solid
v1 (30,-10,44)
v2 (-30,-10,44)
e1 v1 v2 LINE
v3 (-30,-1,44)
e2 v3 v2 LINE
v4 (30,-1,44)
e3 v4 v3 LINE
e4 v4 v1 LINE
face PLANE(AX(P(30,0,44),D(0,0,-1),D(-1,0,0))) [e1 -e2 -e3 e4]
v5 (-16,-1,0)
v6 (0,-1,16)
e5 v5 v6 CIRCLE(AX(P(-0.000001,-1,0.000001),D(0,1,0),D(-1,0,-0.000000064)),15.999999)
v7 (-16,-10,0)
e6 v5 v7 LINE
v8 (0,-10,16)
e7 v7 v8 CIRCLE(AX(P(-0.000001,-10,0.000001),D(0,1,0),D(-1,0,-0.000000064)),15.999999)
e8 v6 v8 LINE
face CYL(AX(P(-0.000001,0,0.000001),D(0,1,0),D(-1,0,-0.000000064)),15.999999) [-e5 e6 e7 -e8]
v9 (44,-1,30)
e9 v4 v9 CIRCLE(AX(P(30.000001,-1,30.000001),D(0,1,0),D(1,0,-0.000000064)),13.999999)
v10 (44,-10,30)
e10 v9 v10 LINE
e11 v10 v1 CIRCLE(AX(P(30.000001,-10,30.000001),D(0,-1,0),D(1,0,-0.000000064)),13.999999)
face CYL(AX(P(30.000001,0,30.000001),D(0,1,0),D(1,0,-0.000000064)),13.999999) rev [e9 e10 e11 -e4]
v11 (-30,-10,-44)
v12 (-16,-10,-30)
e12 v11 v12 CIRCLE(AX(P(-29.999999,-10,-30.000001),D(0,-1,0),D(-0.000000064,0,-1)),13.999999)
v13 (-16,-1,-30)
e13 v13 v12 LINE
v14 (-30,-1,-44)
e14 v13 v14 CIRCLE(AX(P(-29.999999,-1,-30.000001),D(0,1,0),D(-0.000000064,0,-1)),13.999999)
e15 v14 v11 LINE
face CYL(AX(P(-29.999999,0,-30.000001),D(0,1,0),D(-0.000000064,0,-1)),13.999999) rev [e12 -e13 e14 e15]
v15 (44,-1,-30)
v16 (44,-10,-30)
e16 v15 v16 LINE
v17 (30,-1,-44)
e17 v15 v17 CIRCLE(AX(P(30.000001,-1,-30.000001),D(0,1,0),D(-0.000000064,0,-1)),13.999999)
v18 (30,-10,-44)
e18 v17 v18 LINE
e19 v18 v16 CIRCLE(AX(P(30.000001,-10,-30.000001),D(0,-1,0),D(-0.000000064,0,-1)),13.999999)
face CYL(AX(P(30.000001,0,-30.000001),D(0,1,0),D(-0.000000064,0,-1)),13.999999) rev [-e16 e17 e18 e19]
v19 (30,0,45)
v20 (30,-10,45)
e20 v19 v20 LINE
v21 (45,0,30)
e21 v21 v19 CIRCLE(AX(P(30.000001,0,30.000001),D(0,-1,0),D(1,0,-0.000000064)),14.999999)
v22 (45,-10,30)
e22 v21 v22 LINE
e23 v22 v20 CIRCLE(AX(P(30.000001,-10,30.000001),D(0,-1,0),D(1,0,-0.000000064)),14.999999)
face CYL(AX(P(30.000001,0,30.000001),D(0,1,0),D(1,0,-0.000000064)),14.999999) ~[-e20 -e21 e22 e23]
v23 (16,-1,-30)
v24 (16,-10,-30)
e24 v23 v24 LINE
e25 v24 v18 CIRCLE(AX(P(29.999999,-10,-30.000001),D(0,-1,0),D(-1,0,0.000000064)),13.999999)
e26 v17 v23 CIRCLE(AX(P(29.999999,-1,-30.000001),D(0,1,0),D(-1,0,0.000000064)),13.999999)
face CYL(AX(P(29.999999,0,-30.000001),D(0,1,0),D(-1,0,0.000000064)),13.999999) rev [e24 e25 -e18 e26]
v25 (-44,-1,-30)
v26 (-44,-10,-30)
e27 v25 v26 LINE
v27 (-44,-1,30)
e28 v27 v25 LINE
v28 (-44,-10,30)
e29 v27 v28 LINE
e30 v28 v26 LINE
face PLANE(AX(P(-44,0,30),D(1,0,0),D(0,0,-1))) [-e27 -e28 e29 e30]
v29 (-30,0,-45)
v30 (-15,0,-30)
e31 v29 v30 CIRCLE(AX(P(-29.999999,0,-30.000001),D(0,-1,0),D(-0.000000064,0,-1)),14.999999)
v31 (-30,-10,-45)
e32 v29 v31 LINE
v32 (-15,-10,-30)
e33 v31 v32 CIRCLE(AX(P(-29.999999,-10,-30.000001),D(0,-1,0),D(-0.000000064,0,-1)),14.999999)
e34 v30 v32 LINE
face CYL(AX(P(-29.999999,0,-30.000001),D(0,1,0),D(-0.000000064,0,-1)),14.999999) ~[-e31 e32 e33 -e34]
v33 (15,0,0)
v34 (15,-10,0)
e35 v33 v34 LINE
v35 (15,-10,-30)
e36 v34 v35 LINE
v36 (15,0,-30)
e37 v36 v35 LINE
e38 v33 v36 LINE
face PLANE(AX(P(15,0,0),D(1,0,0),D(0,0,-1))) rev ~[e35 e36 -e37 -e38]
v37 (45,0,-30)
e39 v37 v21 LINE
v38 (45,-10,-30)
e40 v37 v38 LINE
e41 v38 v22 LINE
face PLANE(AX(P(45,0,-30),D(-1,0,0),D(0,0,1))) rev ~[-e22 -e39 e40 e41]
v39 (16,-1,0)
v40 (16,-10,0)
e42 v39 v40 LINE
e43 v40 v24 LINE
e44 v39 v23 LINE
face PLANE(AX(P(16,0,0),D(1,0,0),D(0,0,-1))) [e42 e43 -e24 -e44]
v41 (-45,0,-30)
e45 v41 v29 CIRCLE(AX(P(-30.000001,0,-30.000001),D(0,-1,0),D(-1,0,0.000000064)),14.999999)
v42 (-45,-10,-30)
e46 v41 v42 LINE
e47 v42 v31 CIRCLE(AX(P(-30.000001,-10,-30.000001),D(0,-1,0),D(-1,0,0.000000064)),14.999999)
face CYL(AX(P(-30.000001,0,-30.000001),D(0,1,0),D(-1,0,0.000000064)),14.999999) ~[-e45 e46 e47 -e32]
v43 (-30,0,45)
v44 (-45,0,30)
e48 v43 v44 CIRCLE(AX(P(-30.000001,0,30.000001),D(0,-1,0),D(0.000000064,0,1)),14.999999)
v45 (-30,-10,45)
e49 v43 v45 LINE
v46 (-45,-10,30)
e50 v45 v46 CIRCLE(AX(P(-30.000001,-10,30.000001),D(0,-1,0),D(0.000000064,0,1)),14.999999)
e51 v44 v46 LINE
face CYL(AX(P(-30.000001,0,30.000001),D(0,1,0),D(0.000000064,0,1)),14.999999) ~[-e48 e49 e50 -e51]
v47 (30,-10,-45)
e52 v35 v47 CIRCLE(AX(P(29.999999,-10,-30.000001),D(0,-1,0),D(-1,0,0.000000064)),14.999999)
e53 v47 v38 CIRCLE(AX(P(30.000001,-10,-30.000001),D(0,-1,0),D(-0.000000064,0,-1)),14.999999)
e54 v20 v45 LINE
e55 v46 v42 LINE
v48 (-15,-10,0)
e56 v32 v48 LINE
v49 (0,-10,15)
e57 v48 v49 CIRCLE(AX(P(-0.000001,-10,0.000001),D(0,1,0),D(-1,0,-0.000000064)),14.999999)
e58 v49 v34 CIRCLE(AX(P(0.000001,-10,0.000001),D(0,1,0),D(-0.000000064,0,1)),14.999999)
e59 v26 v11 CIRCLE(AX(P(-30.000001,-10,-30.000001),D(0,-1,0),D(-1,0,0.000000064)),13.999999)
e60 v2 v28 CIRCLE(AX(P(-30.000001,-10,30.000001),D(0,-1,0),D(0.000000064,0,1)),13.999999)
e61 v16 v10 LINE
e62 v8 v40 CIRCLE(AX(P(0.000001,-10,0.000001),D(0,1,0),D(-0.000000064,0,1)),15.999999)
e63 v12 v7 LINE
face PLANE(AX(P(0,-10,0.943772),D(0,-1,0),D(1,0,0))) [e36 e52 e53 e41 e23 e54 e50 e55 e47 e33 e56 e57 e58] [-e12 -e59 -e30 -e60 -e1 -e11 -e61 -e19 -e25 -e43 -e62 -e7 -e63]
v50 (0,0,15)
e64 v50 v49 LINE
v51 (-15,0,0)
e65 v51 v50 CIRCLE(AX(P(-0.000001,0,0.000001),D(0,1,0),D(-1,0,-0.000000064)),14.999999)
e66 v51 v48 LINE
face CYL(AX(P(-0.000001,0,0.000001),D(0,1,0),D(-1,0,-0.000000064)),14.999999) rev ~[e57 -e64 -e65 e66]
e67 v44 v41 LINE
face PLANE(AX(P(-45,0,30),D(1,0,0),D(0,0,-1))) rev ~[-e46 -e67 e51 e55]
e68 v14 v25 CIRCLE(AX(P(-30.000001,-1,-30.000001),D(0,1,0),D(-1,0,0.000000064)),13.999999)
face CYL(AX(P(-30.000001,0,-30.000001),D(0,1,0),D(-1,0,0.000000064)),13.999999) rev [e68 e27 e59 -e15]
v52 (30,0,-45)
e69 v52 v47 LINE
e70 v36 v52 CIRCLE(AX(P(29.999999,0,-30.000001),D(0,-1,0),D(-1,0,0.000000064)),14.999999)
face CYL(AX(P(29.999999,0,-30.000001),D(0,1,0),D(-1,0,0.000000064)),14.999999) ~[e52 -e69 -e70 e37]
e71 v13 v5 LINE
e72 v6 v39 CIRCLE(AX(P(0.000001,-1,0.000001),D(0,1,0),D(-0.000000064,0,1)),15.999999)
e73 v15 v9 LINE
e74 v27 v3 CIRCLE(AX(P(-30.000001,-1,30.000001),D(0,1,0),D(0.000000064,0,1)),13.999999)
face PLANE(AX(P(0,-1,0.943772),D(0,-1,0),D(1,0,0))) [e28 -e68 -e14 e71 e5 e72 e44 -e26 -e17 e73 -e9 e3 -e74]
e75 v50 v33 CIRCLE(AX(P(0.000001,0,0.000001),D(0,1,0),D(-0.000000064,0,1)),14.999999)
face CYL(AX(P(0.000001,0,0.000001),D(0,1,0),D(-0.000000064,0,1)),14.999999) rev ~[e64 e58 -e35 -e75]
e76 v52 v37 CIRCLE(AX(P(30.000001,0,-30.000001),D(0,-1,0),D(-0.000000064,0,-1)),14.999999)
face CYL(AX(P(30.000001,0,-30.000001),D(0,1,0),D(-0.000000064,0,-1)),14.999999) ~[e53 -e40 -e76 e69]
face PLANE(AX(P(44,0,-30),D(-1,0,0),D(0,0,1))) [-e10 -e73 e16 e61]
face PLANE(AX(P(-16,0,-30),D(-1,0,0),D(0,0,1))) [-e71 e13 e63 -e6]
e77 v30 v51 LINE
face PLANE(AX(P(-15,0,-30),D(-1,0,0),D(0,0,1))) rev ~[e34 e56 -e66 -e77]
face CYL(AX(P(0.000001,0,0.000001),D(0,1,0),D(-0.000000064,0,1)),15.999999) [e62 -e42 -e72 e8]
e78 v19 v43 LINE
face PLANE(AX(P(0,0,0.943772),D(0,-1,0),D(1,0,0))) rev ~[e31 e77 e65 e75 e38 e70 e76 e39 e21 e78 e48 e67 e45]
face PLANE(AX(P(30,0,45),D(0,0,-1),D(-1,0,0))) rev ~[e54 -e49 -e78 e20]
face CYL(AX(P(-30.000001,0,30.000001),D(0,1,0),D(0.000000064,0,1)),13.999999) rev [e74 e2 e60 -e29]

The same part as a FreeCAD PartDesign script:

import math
import FreeCAD as App
import Part
import Sketcher
Q = App.Units.Quantity


def faces_at(feature, points):
    """Names of the faces that lie closest to the given points."""
    faces = feature.Shape.Faces
    near = lambda p: min(range(len(faces)), key=lambda i: faces[i].distToShape(Part.Vertex(*p))[0])
    return sorted({f"Face{near(p) + 1}" for p in points})

doc = App.newDocument("Part")
body = doc.addObject("PartDesign::Body", "Body")

# Sketch on XZ plane
sketch1 = body.newObject("Sketcher::SketchObject", "Sketch")
sketch1.AttachmentSupport = (doc.getObject("XZ_Plane"), [""])
sketch1.MapMode = "FlatFace"
sketch1.addGeometry([
    Part.ArcOfCircle(Part.Circle(App.Vector(30, 30, 0), App.Vector(0, 0, 1), 15), math.radians(0), math.radians(90)),  # 0
    Part.LineSegment(App.Vector(30, 45, 0), App.Vector(-30, 45, 0)),  # 1
    Part.ArcOfCircle(Part.Circle(App.Vector(-30, 30, 0), App.Vector(0, 0, 1), 15), math.radians(90), math.radians(180)),  # 2
    Part.LineSegment(App.Vector(-45, 30, 0), App.Vector(-45, -30, 0)),  # 3
    Part.ArcOfCircle(Part.Circle(App.Vector(-30, -30, 0), App.Vector(0, 0, 1), 15), math.radians(180), math.radians(270)),  # 4
    Part.ArcOfCircle(Part.Circle(App.Vector(-30, -30, 0), App.Vector(0, 0, 1), 15), math.radians(-90), math.radians(0)),  # 5
    Part.LineSegment(App.Vector(-15, -30, 0), App.Vector(-15, 0, 0)),  # 6
    Part.ArcOfCircle(Part.Circle(App.Vector(0, 0, 0), App.Vector(0, 0, 1), 15), math.radians(90), math.radians(180)),  # 7
    Part.ArcOfCircle(Part.Circle(App.Vector(0, 0, 0), App.Vector(0, 0, 1), 15), math.radians(0), math.radians(90)),  # 8
    Part.LineSegment(App.Vector(15, 0, 0), App.Vector(15, -30, 0)),  # 9
    Part.ArcOfCircle(Part.Circle(App.Vector(30, -30, 0), App.Vector(0, 0, 1), 15), math.radians(180), math.radians(270)),  # 10
    Part.ArcOfCircle(Part.Circle(App.Vector(30, -30, 0), App.Vector(0, 0, 1), 15), math.radians(-90), math.radians(0)),  # 11
    Part.LineSegment(App.Vector(45, -30, 0), App.Vector(45, 30, 0)),  # 12
], False)
sketch1.addConstraint([
    Sketcher.Constraint("Tangent", 0, 2, 1, 1),
    Sketcher.Constraint("Tangent", 1, 2, 2, 1),
    Sketcher.Constraint("Tangent", 2, 2, 3, 1),
    Sketcher.Constraint("Tangent", 3, 2, 4, 1),
    Sketcher.Constraint("Tangent", 4, 2, 5, 1),
    Sketcher.Constraint("Tangent", 5, 2, 6, 1),
    Sketcher.Constraint("Tangent", 6, 2, 7, 2),
    Sketcher.Constraint("Tangent", 7, 1, 8, 2),
    Sketcher.Constraint("Tangent", 8, 1, 9, 1),
    Sketcher.Constraint("Tangent", 9, 2, 10, 1),
    Sketcher.Constraint("Tangent", 10, 2, 11, 1),
    Sketcher.Constraint("Tangent", 11, 2, 12, 1),
    Sketcher.Constraint("Tangent", 12, 2, 0, 1),
    Sketcher.Constraint("Horizontal", 1),
    Sketcher.Constraint("Vertical", 3),
    Sketcher.Constraint("Vertical", 6),
    Sketcher.Constraint("Vertical", 9),
    Sketcher.Constraint("Vertical", 12),
    Sketcher.Constraint("Coincident", 7, 3, -1, 1),
    Sketcher.Constraint("Equal", 0, 2),
    Sketcher.Constraint("Equal", 2, 4),
    Sketcher.Constraint("Equal", 4, 5),
    Sketcher.Constraint("Equal", 5, 7),
    Sketcher.Constraint("Equal", 7, 8),
    Sketcher.Constraint("Equal", 8, 10),
    Sketcher.Constraint("Equal", 10, 11),
    Sketcher.Constraint("Symmetric", 0, 2, 4, 2, -1, 1),
    Sketcher.Constraint("Symmetric", 1, 2, 10, 2, -1, 1),
    Sketcher.Constraint("PointOnObject", 7, 1, -2),
    Sketcher.Constraint("Equal", 1, 3),
    Sketcher.Constraint("Radius", 0, Q("14.999999 mm")),
])
pad1 = body.newObject("PartDesign::Pad", "Pad")
pad1.Profile = sketch1
pad1.Length = 10
doc.recompute()

thickness = body.newObject("PartDesign::Thickness", "Thickness")
thickness.Base = (pad1, faces_at(pad1, [(-18, -10, -18)]))
thickness.Value = 1
thickness.Reversed = True
thickness.Join = "Arc"

doc.recompute()
